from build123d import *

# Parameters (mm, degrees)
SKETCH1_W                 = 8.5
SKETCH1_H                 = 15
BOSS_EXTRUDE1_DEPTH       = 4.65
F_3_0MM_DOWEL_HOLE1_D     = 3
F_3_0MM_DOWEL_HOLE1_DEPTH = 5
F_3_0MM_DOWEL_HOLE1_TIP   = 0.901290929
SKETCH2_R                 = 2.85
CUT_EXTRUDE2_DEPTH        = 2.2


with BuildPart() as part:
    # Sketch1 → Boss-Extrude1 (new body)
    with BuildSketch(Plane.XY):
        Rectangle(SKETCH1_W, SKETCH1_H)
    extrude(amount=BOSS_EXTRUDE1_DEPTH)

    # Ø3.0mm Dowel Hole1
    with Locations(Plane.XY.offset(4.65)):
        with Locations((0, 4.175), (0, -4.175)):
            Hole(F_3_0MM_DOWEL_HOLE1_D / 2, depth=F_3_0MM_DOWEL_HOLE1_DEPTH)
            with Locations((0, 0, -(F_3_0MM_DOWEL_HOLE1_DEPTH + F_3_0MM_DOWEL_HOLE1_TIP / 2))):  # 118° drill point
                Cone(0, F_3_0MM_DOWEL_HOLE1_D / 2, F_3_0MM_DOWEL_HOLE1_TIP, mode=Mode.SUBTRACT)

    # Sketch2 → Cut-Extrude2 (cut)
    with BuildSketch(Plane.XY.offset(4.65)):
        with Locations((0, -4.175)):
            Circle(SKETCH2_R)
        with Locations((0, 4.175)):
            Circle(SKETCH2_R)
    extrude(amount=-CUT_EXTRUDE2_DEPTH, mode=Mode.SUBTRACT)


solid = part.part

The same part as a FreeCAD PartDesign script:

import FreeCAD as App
import Part
import Sketcher
from FreeCAD import Vector


def add_polygon(sketch, points):
    """Adds a closed chain of lines whose ends are joined by coincident constraints."""
    first, n = sketch.GeometryCount, len(points)
    for a, b in zip(points, points[1:] + points[:1]):
        sketch.addGeometry(Part.LineSegment(App.Vector(*a, 0), App.Vector(*b, 0)), False)
    for i in range(n):
        sketch.addConstraint(Sketcher.Constraint("Coincident", first + i, 2, first + (i + 1) % n, 1))

doc = App.newDocument("Part")
body = doc.addObject("PartDesign::Body", "Body")

# Sketch on XY plane
sketch1 = body.newObject("Sketcher::SketchObject", "Sketch")
sketch1.AttachmentSupport = (doc.getObject("XY_Plane"), [""])
sketch1.MapMode = "FlatFace"
add_polygon(sketch1, [(-4, 8), (-4, -8), (4, -8), (4, 8)])  # lines 0-3
sketch1.addConstraint([
    Sketcher.Constraint("Vertical", 0),
    Sketcher.Constraint("Horizontal", 1),
    Sketcher.Constraint("Vertical", 2),
    Sketcher.Constraint("Horizontal", 3),
    Sketcher.Constraint("Symmetric", 0, 2, 2, 2, -1, 1),
    Sketcher.Constraint("DistanceY", 0, 2, 0, 1, 15.0),
    Sketcher.Constraint("DistanceX", 1, 1, 1, 2, 8.5),
])
pad1 = body.newObject("PartDesign::Pad", "Pad")
pad1.Profile = sketch1
pad1.Length = 4.65

# Sketch on XY plane
sketch2 = body.newObject("Sketcher::SketchObject", "Sketch001")
sketch2.AttachmentSupport = (doc.getObject("XY_Plane"), [""])
sketch2.MapMode = "FlatFace"
sketch2.AttachmentOffset = App.Placement(Vector(0, 0, 4.65), App.Rotation())
sketch2.addGeometry([
    Part.Circle(Vector(0, 4.2, 0), Vector(0, 0, 1), 1.5),
    Part.Circle(Vector(0, -4.2, 0), Vector(0, 0, 1), 1.5),
], False)
sketch2.addConstraint([
    Sketcher.Constraint("Equal", 0, 1),
    Sketcher.Constraint("Symmetric", 0, 3, 1, 3, -1, 1),
    Sketcher.Constraint("PointOnObject", 0, 3, -2),
    Sketcher.Constraint("Diameter", 0, 3.0),
    Sketcher.Constraint("DistanceY", 1, 3, 0, 3, 8.35),
])
doc.recompute()
hole = body.newObject("PartDesign::Hole", "Hole")
hole.Profile = sketch2
hole.ThreadType = "None"
hole.Diameter = 3
hole.DepthType = "Dimension"
hole.Depth = 5
hole.DrillPoint = "Angled"
hole.DrillPointAngle = 118

# Sketch on XY plane
sketch3 = body.newObject("Sketcher::SketchObject", "Sketch002")
sketch3.AttachmentSupport = (doc.getObject("XY_Plane"), [""])
sketch3.MapMode = "FlatFace"
sketch3.AttachmentOffset = App.Placement(Vector(0, 0, 4.65), App.Rotation())
sketch3.addGeometry([
    Part.Circle(Vector(0, -4.2, 0), Vector(0, 0, 1), 2.9),
    Part.Circle(Vector(0, 4.2, 0), Vector(0, 0, 1), 2.9),
], False)
sketch3.addConstraint([
    Sketcher.Constraint("Equal", 0, 1),
    Sketcher.Constraint("Symmetric", 0, 3, 1, 3, -1, 1),
    Sketcher.Constraint("PointOnObject", 0, 3, -2),
    Sketcher.Constraint("Diameter", 0, 5.7),
    Sketcher.Constraint("DistanceY", 0, 3, 1, 3, 8.35),
])
pocket1 = body.newObject("PartDesign::Pocket", "Pocket")
pocket1.Profile = sketch3
pocket1.Length = 2.2

doc.recompute()
